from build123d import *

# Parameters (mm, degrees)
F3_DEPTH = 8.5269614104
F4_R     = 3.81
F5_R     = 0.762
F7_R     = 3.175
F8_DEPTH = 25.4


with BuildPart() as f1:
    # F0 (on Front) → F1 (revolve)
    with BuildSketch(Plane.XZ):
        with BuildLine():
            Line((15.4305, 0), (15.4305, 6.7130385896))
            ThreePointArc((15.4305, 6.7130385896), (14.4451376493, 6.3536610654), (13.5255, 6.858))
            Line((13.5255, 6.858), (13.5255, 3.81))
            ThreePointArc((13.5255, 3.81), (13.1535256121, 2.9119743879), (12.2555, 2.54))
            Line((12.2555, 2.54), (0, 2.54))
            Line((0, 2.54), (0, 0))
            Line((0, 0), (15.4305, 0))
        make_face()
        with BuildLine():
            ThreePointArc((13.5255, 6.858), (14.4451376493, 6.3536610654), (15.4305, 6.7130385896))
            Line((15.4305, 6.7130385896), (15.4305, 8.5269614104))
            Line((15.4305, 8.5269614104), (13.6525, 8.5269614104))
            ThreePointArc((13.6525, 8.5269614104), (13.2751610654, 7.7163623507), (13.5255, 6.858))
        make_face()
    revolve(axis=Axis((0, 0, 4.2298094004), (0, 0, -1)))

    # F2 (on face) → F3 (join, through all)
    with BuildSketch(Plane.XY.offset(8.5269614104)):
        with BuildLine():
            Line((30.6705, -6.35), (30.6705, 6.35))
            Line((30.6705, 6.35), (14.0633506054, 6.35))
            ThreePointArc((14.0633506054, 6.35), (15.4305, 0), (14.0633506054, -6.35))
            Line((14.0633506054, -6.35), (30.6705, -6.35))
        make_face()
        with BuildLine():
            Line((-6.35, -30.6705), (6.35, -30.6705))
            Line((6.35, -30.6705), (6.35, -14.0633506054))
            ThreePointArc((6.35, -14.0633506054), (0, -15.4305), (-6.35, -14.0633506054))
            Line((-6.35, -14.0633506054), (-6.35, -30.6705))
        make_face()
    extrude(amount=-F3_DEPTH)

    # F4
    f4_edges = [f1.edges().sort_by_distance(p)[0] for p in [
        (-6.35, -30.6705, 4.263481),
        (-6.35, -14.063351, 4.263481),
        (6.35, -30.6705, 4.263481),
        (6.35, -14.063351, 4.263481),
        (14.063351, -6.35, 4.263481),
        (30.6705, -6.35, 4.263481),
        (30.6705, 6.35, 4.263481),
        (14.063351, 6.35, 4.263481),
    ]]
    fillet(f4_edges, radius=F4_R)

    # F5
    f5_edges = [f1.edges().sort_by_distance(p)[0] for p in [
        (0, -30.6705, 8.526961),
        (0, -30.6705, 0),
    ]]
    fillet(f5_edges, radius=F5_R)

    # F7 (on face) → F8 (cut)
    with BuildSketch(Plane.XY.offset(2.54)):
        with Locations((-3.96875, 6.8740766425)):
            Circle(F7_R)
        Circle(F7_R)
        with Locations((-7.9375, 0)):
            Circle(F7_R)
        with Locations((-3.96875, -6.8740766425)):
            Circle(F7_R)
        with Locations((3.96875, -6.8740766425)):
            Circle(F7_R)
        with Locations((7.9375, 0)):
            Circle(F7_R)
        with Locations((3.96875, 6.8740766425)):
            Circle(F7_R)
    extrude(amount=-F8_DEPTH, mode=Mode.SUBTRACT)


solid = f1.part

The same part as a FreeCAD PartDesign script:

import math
import FreeCAD as App
import Part
import Sketcher
Q = App.Units.Quantity


def edges_at(feature, points):
    """Names of the edges that pass closest to the given points."""
    edges = feature.Shape.Edges
    near = lambda p: min(range(len(edges)), key=lambda i: edges[i].distToShape(Part.Vertex(*p))[0])
    return sorted({f"Edge{near(p) + 1}" for p in points})

doc = App.newDocument("Part")
body = doc.addObject("PartDesign::Body", "Body")

# Sketch on XZ plane
sketch1 = body.newObject("Sketcher::SketchObject", "Sketch")
sketch1.AttachmentSupport = (doc.getObject("XZ_Plane"), [""])
sketch1.MapMode = "FlatFace"
sketch1.addGeometry([
    Part.LineSegment(App.Vector(15.4305, 0, 0), App.Vector(15.4305, 8.526961, 0)),  # 0
    Part.LineSegment(App.Vector(15.4305, 8.526961, 0), App.Vector(13.6525, 8.526961, 0)),  # 1
    Part.ArcOfCircle(Part.Circle(App.Vector(14.5415, 7.62, 0), App.Vector(0, 0, 1), 1.27), math.radians(134.427004), math.radians(216.869898)),  # 2
    Part.LineSegment(App.Vector(13.5255, 6.858, 0), App.Vector(13.5255, 3.81, 0)),  # 3
    Part.ArcOfCircle(Part.Circle(App.Vector(12.2555, 3.81, 0), App.Vector(0, 0, 1), 1.27), math.radians(-90), math.radians(0)),  # 4
    Part.LineSegment(App.Vector(12.2555, 2.54, 0), App.Vector(0, 2.54, 0)),  # 5
    Part.LineSegment(App.Vector(0, 2.54, 0), App.Vector(0, 0, 0)),  # 6
    Part.LineSegment(App.Vector(0, 0, 0), App.Vector(15.4305, 0, 0)),  # 7
], False)
sketch1.addConstraint([
    Sketcher.Constraint("Coincident", 0, 2, 1, 1),
    Sketcher.Constraint("Coincident", 1, 2, 2, 1),
    Sketcher.Constraint("Coincident", 2, 2, 3, 1),
    Sketcher.Constraint("Tangent", 3, 2, 4, 2),
    Sketcher.Constraint("Tangent", 4, 1, 5, 1),
    Sketcher.Constraint("Coincident", 5, 2, 6, 1),
    Sketcher.Constraint("Coincident", 6, 2, 7, 1),
    Sketcher.Constraint("Coincident", 7, 2, 0, 1),
    Sketcher.Constraint("Vertical", 0),
    Sketcher.Constraint("Horizontal", 1),
    Sketcher.Constraint("Vertical", 3),
    Sketcher.Constraint("Horizontal", 5),
    Sketcher.Constraint("Vertical", 6),
    Sketcher.Constraint("Horizontal", 7),
    Sketcher.Constraint("Coincident", 6, 2, -1, 1),
    Sketcher.Constraint("Equal", 2, 4),
    Sketcher.Constraint("Radius", 2, Q("0.05 in")),
    Sketcher.Constraint("DistanceY", 6, 2, 6, 1, Q("0.1 in")),
    Sketcher.Constraint("DistanceX", 1, 2, 1, 1, Q("0.07 in")),
    Sketcher.Constraint("DistanceY", 3, 2, 3, 1, Q("0.12 in")),
    Sketcher.Constraint("DistanceY", -1, 1, 2, 3, Q("0.3 in")),
    Sketcher.Constraint("DistanceX", 5, 2, 5, 1, Q("0.4825 in")),
    Sketcher.Constraint("DistanceX", 7, 1, 7, 2, Q("0.6075 in")),
])
revolution = body.newObject("PartDesign::Revolution", "Revolution")
revolution.Profile = sketch1
revolution.ReferenceAxis = (sketch1, ["V_Axis"])
revolution.Angle = 360

# Sketch on XY plane
sketch2 = body.newObject("Sketcher::SketchObject", "Sketch001")
sketch2.AttachmentSupport = (doc.getObject("XY_Plane"), [""])
sketch2.MapMode = "FlatFace"
sketch2.AttachmentOffset = App.Placement(App.Vector(0, 0, 8.526961), App.Rotation())
sketch2.addGeometry([
    Part.LineSegment(App.Vector(30.6705, -6.35, 0), App.Vector(30.6705, 6.35, 0)),  # 0
    Part.LineSegment(App.Vector(30.6705, 6.35, 0), App.Vector(14.063351, 6.35, 0)),  # 1
    Part.ArcOfCircle(Part.Circle(App.Vector(0, 0, 0), App.Vector(0, 0, 1), 15.4305), math.radians(-24.30052), math.radians(24.30052)),  # 2
    Part.LineSegment(App.Vector(14.063351, -6.35, 0), App.Vector(30.6705, -6.35, 0)),  # 3
    Part.LineSegment(App.Vector(-6.35, -30.6705, 0), App.Vector(6.35, -30.6705, 0)),  # 4
    Part.LineSegment(App.Vector(6.35, -30.6705, 0), App.Vector(6.35, -14.063351, 0)),  # 5
    Part.ArcOfCircle(Part.Circle(App.Vector(0, 0, 0), App.Vector(0, 0, 1), 15.4305), math.radians(-114.30052), math.radians(-65.69948)),  # 6
    Part.LineSegment(App.Vector(-6.35, -14.063351, 0), App.Vector(-6.35, -30.6705, 0)),  # 7
], False)
sketch2.addConstraint([
    Sketcher.Constraint("Coincident", 0, 2, 1, 1),
    Sketcher.Constraint("Coincident", 1, 2, 2, 2),
    Sketcher.Constraint("Coincident", 2, 1, 3, 1),
    Sketcher.Constraint("Coincident", 3, 2, 0, 1),
    Sketcher.Constraint("Coincident", 4, 2, 5, 1),
    Sketcher.Constraint("Coincident", 5, 2, 6, 2),
    Sketcher.Constraint("Coincident", 6, 1, 7, 1),
    Sketcher.Constraint("Coincident", 7, 2, 4, 1),
    Sketcher.Constraint("Vertical", 0),
    Sketcher.Constraint("Horizontal", 1),
    Sketcher.Constraint("Horizontal", 3),
    Sketcher.Constraint("Horizontal", 4),
    Sketcher.Constraint("Vertical", 5),
    Sketcher.Constraint("Vertical", 7),
    Sketcher.Constraint("Coincident", 2, 3, -1, 1),
    Sketcher.Constraint("Coincident", 6, 3, -1, 1),
    Sketcher.Constraint("Equal", 2, 6),
    Sketcher.Constraint("Horizontal", 5, 2, 6, 1),
    Sketcher.Constraint("Vertical", 1, 2, 2, 1),
    Sketcher.Constraint("Equal", 4, 0),
    Sketcher.Constraint("Equal", 3, 5),
    Sketcher.Constraint("DistanceX", 4, 1, 4, 2, Q("0.5 in")),
    Sketcher.Constraint("Radius", 2, Q("0.6075 in")),
    Sketcher.Constraint("DistanceX", -1, 1, 0, 2, Q("1.2075 in")),
])
pad1 = body.newObject("PartDesign::Pad", "Pad")
pad1.Profile = sketch2
pad1.Length = 8.526961
pad1.Reversed = True
doc.recompute()

fillet = body.newObject("PartDesign::Fillet", "Fillet")
fillet.Base = (pad1, edges_at(pad1, [
    (-6.35, -30.671, 4.263),
    (-6.35, -14.063, 4.263),
    (6.35, -30.671, 4.263),
    (6.35, -14.063, 4.263),
    (14.063, -6.35, 4.263),
    (30.671, -6.35, 4.263),
    (30.671, 6.35, 4.263),
    (14.063, 6.35, 4.263),
]))
fillet.Radius = Q("0.15 in")
doc.recompute()

fillet2 = body.newObject("PartDesign::Fillet", "Fillet001")
fillet2.Base = (fillet, edges_at(fillet, [(0, -30.671, 8.527), (0, -30.671, 0)]))
fillet2.Radius = Q("0.03 in")

# Sketch on XY plane
sketch3 = body.newObject("Sketcher::SketchObject", "Sketch002")
sketch3.AttachmentSupport = (doc.getObject("XY_Plane"), [""])
sketch3.MapMode = "FlatFace"
sketch3.AttachmentOffset = App.Placement(App.Vector(0, 0, 0.1 * 25.4), App.Rotation())
sketch3.addGeometry([
    Part.Circle(App.Vector(-3.96875, 6.874077, 0), App.Vector(0, 0, 1), 3.175),  # 0
    Part.Circle(App.Vector(0, 0, 0), App.Vector(0, 0, 1), 3.175),  # 1
    Part.Circle(App.Vector(-7.9375, 0, 0), App.Vector(0, 0, 1), 3.175),  # 2
    Part.Circle(App.Vector(-3.96875, -6.874077, 0), App.Vector(0, 0, 1), 3.175),  # 3
    Part.Circle(App.Vector(3.96875, -6.874077, 0), App.Vector(0, 0, 1), 3.175),  # 4
    Part.Circle(App.Vector(7.9375, 0, 0), App.Vector(0, 0, 1), 3.175),  # 5
    Part.Circle(App.Vector(3.96875, 6.874077, 0), App.Vector(0, 0, 1), 3.175),  # 6
], False)
sketch3.addConstraint([
    Sketcher.Constraint("Coincident", 1, 3, -1, 1),
    Sketcher.Constraint("Equal", 0, 1),
    Sketcher.Constraint("Equal", 1, 2),
    Sketcher.Constraint("Equal", 2, 3),
    Sketcher.Constraint("Equal", 3, 4),
    Sketcher.Constraint("Equal", 4, 5),
    Sketcher.Constraint("Equal", 5, 6),
    Sketcher.Constraint("Symmetric", 0, 3, 4, 3, -1, 1),
    Sketcher.Constraint("Symmetric", 2, 3, 5, 3, -1, 1),
    Sketcher.Constraint("Symmetric", 3, 3, 6, 3, -1, 1),
    Sketcher.Constraint("Symmetric", 3, 3, 4, 3, -2),
    Sketcher.Constraint("PointOnObject", 2, 3, -1),
    Sketcher.Constraint("Diameter", 0, Q("0.25 in")),
    Sketcher.Constraint("DistanceX", 0, 3, -1, 1, Q("0.15625 in")),
    Sketcher.Constraint("DistanceX", 2, 3, -1, 1, Q("0.3125 in")),
    Sketcher.Constraint("DistanceY", -1, 1, 0, 3, Q("6.874077 mm")),
])
pocket1 = body.newObject("PartDesign::Pocket", "Pocket")
pocket1.Profile = sketch3
pocket1.Length = Q("1 in")

doc.recompute()
